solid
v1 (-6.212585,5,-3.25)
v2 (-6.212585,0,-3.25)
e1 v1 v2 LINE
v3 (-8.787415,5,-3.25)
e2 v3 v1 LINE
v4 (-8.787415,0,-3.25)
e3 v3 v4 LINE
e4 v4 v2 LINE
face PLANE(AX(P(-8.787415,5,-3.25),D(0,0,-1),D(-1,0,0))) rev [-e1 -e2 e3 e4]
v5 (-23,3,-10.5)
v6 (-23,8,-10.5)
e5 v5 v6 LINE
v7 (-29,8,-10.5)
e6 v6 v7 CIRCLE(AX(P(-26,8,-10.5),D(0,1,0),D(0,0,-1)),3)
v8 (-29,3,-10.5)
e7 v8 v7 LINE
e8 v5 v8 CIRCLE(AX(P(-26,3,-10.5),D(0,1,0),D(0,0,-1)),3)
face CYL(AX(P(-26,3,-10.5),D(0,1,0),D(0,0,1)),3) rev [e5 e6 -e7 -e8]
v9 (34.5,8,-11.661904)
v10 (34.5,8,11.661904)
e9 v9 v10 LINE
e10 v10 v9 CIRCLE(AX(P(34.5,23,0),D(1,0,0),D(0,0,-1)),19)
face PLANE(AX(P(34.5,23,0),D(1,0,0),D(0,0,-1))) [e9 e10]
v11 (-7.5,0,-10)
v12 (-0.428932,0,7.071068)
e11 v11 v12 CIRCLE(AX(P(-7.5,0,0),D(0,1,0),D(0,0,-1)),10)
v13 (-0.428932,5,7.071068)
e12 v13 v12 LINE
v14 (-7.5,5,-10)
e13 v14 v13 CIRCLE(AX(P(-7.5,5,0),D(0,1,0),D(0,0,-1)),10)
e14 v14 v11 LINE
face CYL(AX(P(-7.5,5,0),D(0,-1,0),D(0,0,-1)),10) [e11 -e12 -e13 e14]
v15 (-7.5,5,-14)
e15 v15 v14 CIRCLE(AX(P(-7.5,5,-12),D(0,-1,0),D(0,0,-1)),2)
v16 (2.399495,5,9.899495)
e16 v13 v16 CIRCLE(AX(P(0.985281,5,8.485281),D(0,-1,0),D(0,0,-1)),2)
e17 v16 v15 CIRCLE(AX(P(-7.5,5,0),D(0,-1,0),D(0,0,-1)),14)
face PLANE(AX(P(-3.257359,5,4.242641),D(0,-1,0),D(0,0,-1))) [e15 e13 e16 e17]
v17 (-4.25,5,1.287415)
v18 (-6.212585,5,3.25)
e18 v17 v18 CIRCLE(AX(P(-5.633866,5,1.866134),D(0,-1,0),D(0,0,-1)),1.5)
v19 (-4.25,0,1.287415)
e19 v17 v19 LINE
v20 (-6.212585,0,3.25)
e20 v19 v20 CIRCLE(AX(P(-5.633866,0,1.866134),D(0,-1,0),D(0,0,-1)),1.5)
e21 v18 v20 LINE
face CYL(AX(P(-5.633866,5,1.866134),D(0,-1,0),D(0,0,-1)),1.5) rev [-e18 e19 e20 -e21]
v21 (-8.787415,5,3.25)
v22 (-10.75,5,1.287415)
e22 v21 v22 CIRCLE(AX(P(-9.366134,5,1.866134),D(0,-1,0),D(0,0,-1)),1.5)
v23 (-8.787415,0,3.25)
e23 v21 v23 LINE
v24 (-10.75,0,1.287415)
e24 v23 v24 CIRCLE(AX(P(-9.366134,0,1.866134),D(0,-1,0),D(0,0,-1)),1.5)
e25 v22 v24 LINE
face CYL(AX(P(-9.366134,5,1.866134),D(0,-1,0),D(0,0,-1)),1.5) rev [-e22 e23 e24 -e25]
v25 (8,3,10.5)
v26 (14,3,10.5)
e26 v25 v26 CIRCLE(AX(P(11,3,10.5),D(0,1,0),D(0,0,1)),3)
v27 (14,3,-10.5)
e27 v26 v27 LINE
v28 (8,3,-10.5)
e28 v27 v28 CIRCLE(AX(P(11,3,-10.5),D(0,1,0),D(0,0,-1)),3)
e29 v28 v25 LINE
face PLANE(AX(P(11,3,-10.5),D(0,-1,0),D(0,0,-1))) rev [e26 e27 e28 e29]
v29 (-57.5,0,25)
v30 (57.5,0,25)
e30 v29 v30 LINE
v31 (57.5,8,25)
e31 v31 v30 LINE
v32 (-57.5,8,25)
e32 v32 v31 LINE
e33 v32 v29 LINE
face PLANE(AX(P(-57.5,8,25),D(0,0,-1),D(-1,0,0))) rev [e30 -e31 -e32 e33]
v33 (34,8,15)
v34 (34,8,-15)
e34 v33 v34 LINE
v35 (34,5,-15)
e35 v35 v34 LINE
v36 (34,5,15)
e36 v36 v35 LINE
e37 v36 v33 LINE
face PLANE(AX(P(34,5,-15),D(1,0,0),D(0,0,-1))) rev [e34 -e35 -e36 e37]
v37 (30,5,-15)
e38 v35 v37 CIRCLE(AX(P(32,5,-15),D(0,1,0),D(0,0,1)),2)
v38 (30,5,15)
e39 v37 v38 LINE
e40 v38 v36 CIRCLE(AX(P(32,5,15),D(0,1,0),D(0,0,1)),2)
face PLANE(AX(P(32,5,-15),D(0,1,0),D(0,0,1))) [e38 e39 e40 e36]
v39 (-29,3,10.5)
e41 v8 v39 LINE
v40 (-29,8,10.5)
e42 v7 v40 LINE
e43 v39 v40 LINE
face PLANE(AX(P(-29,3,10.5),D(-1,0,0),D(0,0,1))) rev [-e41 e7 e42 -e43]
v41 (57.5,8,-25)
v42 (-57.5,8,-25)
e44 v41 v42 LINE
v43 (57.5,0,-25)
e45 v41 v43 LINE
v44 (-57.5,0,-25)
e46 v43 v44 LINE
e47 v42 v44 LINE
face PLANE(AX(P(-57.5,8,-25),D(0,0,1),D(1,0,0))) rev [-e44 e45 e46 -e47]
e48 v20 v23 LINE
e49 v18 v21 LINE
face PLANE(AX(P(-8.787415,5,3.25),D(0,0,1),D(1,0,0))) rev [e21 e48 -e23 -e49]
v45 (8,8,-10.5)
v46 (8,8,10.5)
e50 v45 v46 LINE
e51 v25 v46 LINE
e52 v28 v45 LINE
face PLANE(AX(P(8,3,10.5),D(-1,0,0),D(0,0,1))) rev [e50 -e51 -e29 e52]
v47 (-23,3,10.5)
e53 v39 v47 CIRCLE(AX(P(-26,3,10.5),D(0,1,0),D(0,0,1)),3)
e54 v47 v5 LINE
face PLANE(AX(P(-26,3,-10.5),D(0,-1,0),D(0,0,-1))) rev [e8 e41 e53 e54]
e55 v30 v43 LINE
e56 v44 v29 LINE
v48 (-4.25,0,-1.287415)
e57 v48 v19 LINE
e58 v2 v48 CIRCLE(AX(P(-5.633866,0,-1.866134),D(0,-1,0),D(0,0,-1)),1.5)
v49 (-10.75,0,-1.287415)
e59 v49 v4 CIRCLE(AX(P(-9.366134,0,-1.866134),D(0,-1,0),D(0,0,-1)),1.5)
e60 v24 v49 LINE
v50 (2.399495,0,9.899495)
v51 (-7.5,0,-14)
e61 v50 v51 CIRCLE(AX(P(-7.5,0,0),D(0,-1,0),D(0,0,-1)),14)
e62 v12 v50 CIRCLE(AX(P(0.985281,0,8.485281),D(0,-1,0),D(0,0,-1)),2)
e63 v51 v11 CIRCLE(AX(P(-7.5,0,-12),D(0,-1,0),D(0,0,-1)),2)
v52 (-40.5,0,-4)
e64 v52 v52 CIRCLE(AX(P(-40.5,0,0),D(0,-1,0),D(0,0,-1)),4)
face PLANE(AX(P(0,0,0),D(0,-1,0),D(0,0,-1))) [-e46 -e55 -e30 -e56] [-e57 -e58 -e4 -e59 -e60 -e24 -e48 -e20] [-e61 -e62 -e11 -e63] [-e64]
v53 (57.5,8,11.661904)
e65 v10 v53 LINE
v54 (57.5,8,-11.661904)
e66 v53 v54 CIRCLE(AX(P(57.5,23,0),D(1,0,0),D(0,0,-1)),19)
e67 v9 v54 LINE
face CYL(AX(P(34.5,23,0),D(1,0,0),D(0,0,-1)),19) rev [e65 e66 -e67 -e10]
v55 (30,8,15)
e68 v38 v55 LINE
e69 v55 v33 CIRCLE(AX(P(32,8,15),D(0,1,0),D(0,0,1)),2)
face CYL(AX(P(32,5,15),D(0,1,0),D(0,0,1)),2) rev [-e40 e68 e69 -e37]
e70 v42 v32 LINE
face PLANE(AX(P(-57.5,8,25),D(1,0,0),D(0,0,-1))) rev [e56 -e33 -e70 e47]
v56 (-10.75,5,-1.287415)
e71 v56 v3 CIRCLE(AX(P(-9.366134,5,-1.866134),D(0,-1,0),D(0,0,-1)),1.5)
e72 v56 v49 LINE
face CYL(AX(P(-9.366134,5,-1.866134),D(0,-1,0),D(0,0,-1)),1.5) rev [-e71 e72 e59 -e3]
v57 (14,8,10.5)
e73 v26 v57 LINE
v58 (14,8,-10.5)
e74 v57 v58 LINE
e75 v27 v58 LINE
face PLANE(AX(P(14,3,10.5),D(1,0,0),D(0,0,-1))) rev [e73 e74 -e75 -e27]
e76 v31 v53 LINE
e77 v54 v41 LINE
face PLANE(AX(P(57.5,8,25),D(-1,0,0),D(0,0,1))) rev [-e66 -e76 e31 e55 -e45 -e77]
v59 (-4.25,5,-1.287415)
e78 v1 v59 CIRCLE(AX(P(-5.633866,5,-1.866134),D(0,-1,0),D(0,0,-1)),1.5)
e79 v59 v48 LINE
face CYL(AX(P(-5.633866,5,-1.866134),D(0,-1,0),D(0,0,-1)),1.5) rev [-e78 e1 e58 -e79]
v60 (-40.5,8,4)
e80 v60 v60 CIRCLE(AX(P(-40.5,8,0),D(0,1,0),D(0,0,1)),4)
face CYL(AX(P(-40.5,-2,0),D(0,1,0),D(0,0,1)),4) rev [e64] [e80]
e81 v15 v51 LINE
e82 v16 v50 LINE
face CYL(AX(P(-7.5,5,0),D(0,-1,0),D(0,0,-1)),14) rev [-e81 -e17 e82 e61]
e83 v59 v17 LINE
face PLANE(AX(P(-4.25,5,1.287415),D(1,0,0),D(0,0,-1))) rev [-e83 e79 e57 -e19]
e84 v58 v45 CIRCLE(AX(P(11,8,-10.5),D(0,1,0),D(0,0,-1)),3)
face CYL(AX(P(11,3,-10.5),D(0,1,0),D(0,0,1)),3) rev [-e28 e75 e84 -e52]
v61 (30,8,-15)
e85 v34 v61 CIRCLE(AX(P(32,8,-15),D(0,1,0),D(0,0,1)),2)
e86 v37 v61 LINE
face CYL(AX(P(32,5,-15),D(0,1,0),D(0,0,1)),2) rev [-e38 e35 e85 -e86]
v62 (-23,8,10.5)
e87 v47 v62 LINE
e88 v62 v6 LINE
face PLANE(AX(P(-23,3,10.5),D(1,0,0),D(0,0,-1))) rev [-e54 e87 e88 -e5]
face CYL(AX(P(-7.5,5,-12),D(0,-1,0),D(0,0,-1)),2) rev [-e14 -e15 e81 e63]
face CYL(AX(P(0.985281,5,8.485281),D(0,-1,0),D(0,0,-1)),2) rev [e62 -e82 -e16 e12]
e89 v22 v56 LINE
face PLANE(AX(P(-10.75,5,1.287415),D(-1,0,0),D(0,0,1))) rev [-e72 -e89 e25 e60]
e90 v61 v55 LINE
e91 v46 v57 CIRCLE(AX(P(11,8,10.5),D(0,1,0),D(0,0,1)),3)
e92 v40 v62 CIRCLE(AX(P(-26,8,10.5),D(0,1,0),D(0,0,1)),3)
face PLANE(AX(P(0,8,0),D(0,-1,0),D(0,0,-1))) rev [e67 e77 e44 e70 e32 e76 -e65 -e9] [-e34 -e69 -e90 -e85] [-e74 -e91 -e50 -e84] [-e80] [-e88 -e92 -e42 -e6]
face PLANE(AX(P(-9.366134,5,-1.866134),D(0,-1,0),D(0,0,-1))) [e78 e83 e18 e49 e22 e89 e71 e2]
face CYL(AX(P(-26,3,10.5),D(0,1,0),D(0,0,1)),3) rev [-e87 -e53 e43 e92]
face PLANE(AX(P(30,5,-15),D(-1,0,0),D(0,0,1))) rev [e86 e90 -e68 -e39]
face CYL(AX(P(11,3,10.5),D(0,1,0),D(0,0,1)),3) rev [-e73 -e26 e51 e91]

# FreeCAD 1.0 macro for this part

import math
import FreeCAD as App
import Part
import Sketcher

V = App.Vector


def add_polygon(sketch, points):
    """Adds a closed chain of lines whose ends are joined by coincident constraints."""
    first, n = sketch.GeometryCount, len(points)
    for a, b in zip(points, points[1:] + points[:1]):
        sketch.addGeometry(Part.LineSegment(App.Vector(*a, 0), App.Vector(*b, 0)), False)
    for i in range(n):
        sketch.addConstraint(Sketcher.Constraint("Coincident", first + i, 2, first + (i + 1) % n, 1))

doc = App.newDocument("Part")
body = doc.addObject("PartDesign::Body", "Body")

# Sketch on XZ plane
sketch1 = body.newObject("Sketcher::SketchObject", "Sketch")
sketch1.AttachmentSupport = (doc.getObject("XZ_Plane"), [""])
sketch1.MapMode = "FlatFace"
add_polygon(sketch1, [(-58, -25), (-58, 25), (58, 25), (58, -25)])  # lines 0-3
sketch1.addConstraint(Sketcher.Constraint("Vertical", 0))
sketch1.addConstraint(Sketcher.Constraint("Horizontal", 1))
sketch1.addConstraint(Sketcher.Constraint("Vertical", 2))
sketch1.addConstraint(Sketcher.Constraint("Horizontal", 3))
sketch1.addConstraint(Sketcher.Constraint("Symmetric", 0, 2, 2, 2, -1, 1))
sketch1.addConstraint(Sketcher.Constraint("DistanceX", 1, 1, 1, 2, 115.0))
sketch1.addConstraint(Sketcher.Constraint("DistanceY", 0, 1, 0, 2, 50.0))
pad1 = body.newObject("PartDesign::Pad", "Pad")
pad1.Profile = sketch1
pad1.Length = 8
pad1.Reversed = True

# Sketch on XZ plane
sketch2 = body.newObject("Sketcher::SketchObject", "Sketch001")
sketch2.AttachmentSupport = (doc.getObject("XZ_Plane"), [""])
sketch2.MapMode = "FlatFace"
sketch2.AttachmentOffset = App.Placement(V(0, 0, -8), App.Rotation())
sketch2.addGeometry(Part.Circle(V(-40.5, 0, 0), V(0, 0, 1), 4), False)
sketch2.addConstraint(Sketcher.Constraint("PointOnObject", 0, 3, -1))
sketch2.addConstraint(Sketcher.Constraint("Diameter", 0, 8.0))
sketch2.addConstraint(Sketcher.Constraint("DistanceX", 0, 3, -1, 1, 40.5))
pocket1 = body.newObject("PartDesign::Pocket", "Pocket")
pocket1.Profile = sketch2
pocket1.Length = 10
pocket1.Reversed = True

# Sketch on XZ plane
sketch3 = body.newObject("Sketcher::SketchObject", "Sketch002")
sketch3.AttachmentSupport = (doc.getObject("XZ_Plane"), [""])
sketch3.MapMode = "FlatFace"
sketch3.AttachmentOffset = App.Placement(V(0, 0, -8), App.Rotation())
sketch3.addGeometry(Part.LineSegment(V(-29, -10.5, 0), V(-29, 10.5, 0)), False)
sketch3.addGeometry(Part.ArcOfCircle(Part.Circle(V(-26, 10.5, 0), V(0, 0, 1), 3), math.radians(0), math.radians(180)), False)
sketch3.addGeometry(Part.LineSegment(V(-23, 10.5, 0), V(-23, -10.5, 0)), False)
sketch3.addGeometry(Part.ArcOfCircle(Part.Circle(V(-26, -10.5, 0), V(0, 0, 1), 3), math.radians(180), math.radians(360)), False)
sketch3.addConstraint(Sketcher.Constraint("Tangent", 0, 2, 1, 2))
sketch3.addConstraint(Sketcher.Constraint("Tangent", 1, 1, 2, 1))
sketch3.addConstraint(Sketcher.Constraint("Tangent", 2, 2, 3, 2))
sketch3.addConstraint(Sketcher.Constraint("Tangent", 3, 1, 0, 1))
sketch3.addConstraint(Sketcher.Constraint("Vertical", 0))
sketch3.addConstraint(Sketcher.Constraint("Vertical", 2))
sketch3.addConstraint(Sketcher.Constraint("Radius", 1, 3.0))
sketch3.addConstraint(Sketcher.Constraint("DistanceY", 0, 1, 0, 2, 21.0))
sketch3.addConstraint(Sketcher.Constraint("DistanceX", 1, 3, -1, 1, 26.0))
sketch3.addConstraint(Sketcher.Constraint("DistanceY", -1, 1, 1, 3, 10.5))
pocket2 = body.newObject("PartDesign::Pocket", "Pocket001")
pocket2.Profile = sketch3
pocket2.Length = 5
pocket2.Reversed = True
doc.recompute()

linearpattern = body.newObject("PartDesign::LinearPattern", "LinearPattern")
linearpattern.Originals = [pocket2]
linearpattern.Direction = (doc.getObject("X_Axis"), [""])
linearpattern.Mode = "offset"
linearpattern.Offset = 37
linearpattern.Occurrences = 2
body.Tip = linearpattern

# Sketch on XZ plane
sketch4 = body.newObject("Sketcher::SketchObject", "Sketch003")
sketch4.AttachmentSupport = (doc.getObject("XZ_Plane"), [""])
sketch4.MapMode = "FlatFace"
sketch4.AttachmentOffset = App.Placement(V(0, 0, -8), App.Rotation())
sketch4.addGeometry(Part.LineSegment(V(34, 15, 0), V(34, -15, 0)), False)
sketch4.addGeometry(Part.ArcOfCircle(Part.Circle(V(32, -15, 0), V(0, 0, 1), 2), math.radians(180), math.radians(360)), False)
sketch4.addGeometry(Part.LineSegment(V(30, -15, 0), V(30, 15, 0)), False)
sketch4.addGeometry(Part.ArcOfCircle(Part.Circle(V(32, 15, 0), V(0, 0, 1), 2), math.radians(0), math.radians(180)), False)
sketch4.addConstraint(Sketcher.Constraint("Tangent", 0, 2, 1, 2))
sketch4.addConstraint(Sketcher.Constraint("Tangent", 1, 1, 2, 1))
sketch4.addConstraint(Sketcher.Constraint("Tangent", 2, 2, 3, 2))
sketch4.addConstraint(Sketcher.Constraint("Tangent", 3, 1, 0, 1))
sketch4.addConstraint(Sketcher.Constraint("Vertical", 0))
sketch4.addConstraint(Sketcher.Constraint("Vertical", 2))
sketch4.addConstraint(Sketcher.Constraint("Radius", 1, 2.0))
sketch4.addConstraint(Sketcher.Constraint("DistanceY", 0, 2, 0, 1, 30.0))
sketch4.addConstraint(Sketcher.Constraint("DistanceX", -1, 1, 1, 3, 32.0))
sketch4.addConstraint(Sketcher.Constraint("DistanceY", 1, 3, -1, 1, 15.0))
pocket3 = body.newObject("PartDesign::Pocket", "Pocket002")
pocket3.Profile = sketch4
pocket3.Length = 3
pocket3.Reversed = True

# Sketch on YZ plane
sketch5 = body.newObject("Sketcher::SketchObject", "Sketch004")
sketch5.AttachmentSupport = (doc.getObject("YZ_Plane"), [""])
sketch5.MapMode = "FlatFace"
sketch5.AttachmentOffset = App.Placement(V(0, 0, 57.5), App.Rotation())
sketch5.addGeometry(Part.LineSegment(V(8, -12, 0), V(23, 0, 0)), False)
sketch5.addGeometry(Part.LineSegment(V(23, 0, 0), V(8, 12, 0)), False)
sketch5.addGeometry(Part.ArcOfCircle(Part.Circle(V(23, 0, 0), V(0, 0, 1), 19), math.radians(142), math.radians(218)), False)
sketch5.addConstraint(Sketcher.Constraint("Coincident", 0, 2, 1, 1))
sketch5.addConstraint(Sketcher.Constraint("Coincident", 1, 2, 2, 1))
sketch5.addConstraint(Sketcher.Constraint("Coincident", 2, 2, 0, 1))
sketch5.addConstraint(Sketcher.Constraint("Coincident", 0, 2, 2, 3))
sketch5.addConstraint(Sketcher.Constraint("Symmetric", 1, 2, 2, 2, -1))
sketch5.addConstraint(Sketcher.Constraint("Radius", 2, 19.0))
sketch5.addConstraint(Sketcher.Constraint("DistanceX", -1, 1, 2, 3, 23.0))
sketch5.addConstraint(Sketcher.Constraint("DistanceX", -1, 1, 1, 2, 8.0))
pocket4 = body.newObject("PartDesign::Pocket", "Pocket003")
pocket4.Profile = sketch5
pocket4.Length = 23

# Sketch on XZ plane
sketch6 = body.newObject("Sketcher::SketchObject", "Sketch005")
sketch6.AttachmentSupport = (doc.getObject("XZ_Plane"), [""])
sketch6.MapMode = "FlatFace"
sketch6.addGeometry(Part.LineSegment(V(-6.2, 3.2, 0), V(-8.8, 3.2, 0)), False)
sketch6.addGeometry(Part.ArcOfCircle(Part.Circle(V(-9.4, 1.9, 0), V(0, 0, 1), 1.5), math.radians(67), math.radians(203)), False)
sketch6.addGeometry(Part.LineSegment(V(-10.8, 1.3, 0), V(-10.8, -1.3, 0)), False)
sketch6.addGeometry(Part.ArcOfCircle(Part.Circle(V(-9.4, -1.9, 0), V(0, 0, 1), 1.5), math.radians(157), math.radians(293)), False)
sketch6.addGeometry(Part.LineSegment(V(-8.8, -3.2, 0), V(-6.2, -3.2, 0)), False)
sketch6.addGeometry(Part.ArcOfCircle(Part.Circle(V(-5.6, -1.9, 0), V(0, 0, 1), 1.5), math.radians(-113), math.radians(23)), False)
sketch6.addGeometry(Part.LineSegment(V(-4.2, -1.3, 0), V(-4.2, 1.3, 0)), False)
sketch6.addGeometry(Part.ArcOfCircle(Part.Circle(V(-5.6, 1.9, 0), V(0, 0, 1), 1.5), math.radians(-23), math.radians(113)), False)
sketch6.addConstraint(Sketcher.Constraint("Coincident", 0, 2, 1, 1))
sketch6.addConstraint(Sketcher.Constraint("Coincident", 1, 2, 2, 1))
sketch6.addConstraint(Sketcher.Constraint("Coincident", 2, 2, 3, 1))
sketch6.addConstraint(Sketcher.Constraint("Coincident", 3, 2, 4, 1))
sketch6.addConstraint(Sketcher.Constraint("Coincident", 4, 2, 5, 1))
sketch6.addConstraint(Sketcher.Constraint("Coincident", 5, 2, 6, 1))
sketch6.addConstraint(Sketcher.Constraint("Coincident", 6, 2, 7, 1))
sketch6.addConstraint(Sketcher.Constraint("Coincident", 7, 2, 0, 1))
sketch6.addConstraint(Sketcher.Constraint("Horizontal", 0))
sketch6.addConstraint(Sketcher.Constraint("Vertical", 2))
sketch6.addConstraint(Sketcher.Constraint("Horizontal", 4))
sketch6.addConstraint(Sketcher.Constraint("Vertical", 6))
sketch6.addConstraint(Sketcher.Constraint("Equal", 1, 3))
sketch6.addConstraint(Sketcher.Constraint("Equal", 3, 5))
sketch6.addConstraint(Sketcher.Constraint("Equal", 5, 7))
sketch6.addConstraint(Sketcher.Constraint("Symmetric", 1, 3, 3, 3, -1))
sketch6.addConstraint(Sketcher.Constraint("Symmetric", 5, 3, 7, 3, -1))
sketch6.addConstraint(Sketcher.Constraint("Horizontal", 3, 3, 5, 3))
sketch6.addConstraint(Sketcher.Constraint("Horizontal", 2, 2, 5, 2))
sketch6.addConstraint(Sketcher.Constraint("Vertical", 0, 2, 3, 2))
sketch6.addConstraint(Sketcher.Constraint("Equal", 4, 2))
sketch6.addConstraint(Sketcher.Constraint("Radius", 1, 1.5))
sketch6.addConstraint(Sketcher.Constraint("DistanceY", -1, 1, 0, 2, 3.25))
sketch6.addConstraint(Sketcher.Constraint("DistanceX", 1, 2, -1, 1, 10.75))
sketch6.addConstraint(Sketcher.Constraint("DistanceX", 5, 2, -1, 1, 4.25))
sketch6.addConstraint(Sketcher.Constraint("DistanceX", 0, 2, 0, 1, 2.57483))
pocket5 = body.newObject("PartDesign::Pocket", "Pocket004")
pocket5.Profile = sketch6
pocket5.Length = 5

# Sketch on XZ plane
sketch7 = body.newObject("Sketcher::SketchObject", "Sketch006")
sketch7.AttachmentSupport = (doc.getObject("XZ_Plane"), [""])
sketch7.MapMode = "FlatFace"
sketch7.addGeometry(Part.ArcOfCircle(Part.Circle(V(-7.5, 0, 0), V(0, 0, 1), 14), math.radians(45), math.radians(270)), False)
sketch7.addGeometry(Part.ArcOfCircle(Part.Circle(V(-7.5, -12, 0), V(0, 0, 1), 2), math.radians(-90), math.radians(90)), False)
sketch7.addGeometry(Part.ArcOfCircle(Part.Circle(V(-7.5, 0, 0), V(0, 0, 1), 10), math.radians(45), math.radians(270)), False)
sketch7.addGeometry(Part.ArcOfCircle(Part.Circle(V(1, 8.5, 0), V(0, 0, 1), 2), math.radians(-135), math.radians(45)), False)
sketch7.addConstraint(Sketcher.Constraint("Tangent", 0, 2, 1, 1))
sketch7.addConstraint(Sketcher.Constraint("Tangent", 1, 2, 2, 2))
sketch7.addConstraint(Sketcher.Constraint("Tangent", 2, 1, 3, 1))
sketch7.addConstraint(Sketcher.Constraint("Tangent", 3, 2, 0, 1))
sketch7.addConstraint(Sketcher.Constraint("Coincident", 2, 3, 0, 3))
sketch7.addConstraint(Sketcher.Constraint("PointOnObject", 0, 3, -1))
sketch7.addConstraint(Sketcher.Constraint("Vertical", 0, 3, 1, 3))
sketch7.addConstraint(Sketcher.Constraint("Radius", 0, 14.0))
sketch7.addConstraint(Sketcher.Constraint("Radius", 1, 2.0))
sketch7.addConstraint(Sketcher.Constraint("DistanceX", 0, 3, -1, 1, 7.5))
sketch7.addConstraint(Sketcher.Constraint("DistanceX", -1, 1, 3, 3, 0.985281))
pocket6 = body.newObject("PartDesign::Pocket", "Pocket005")
pocket6.Profile = sketch7
pocket6.Length = 5

doc.recompute()
